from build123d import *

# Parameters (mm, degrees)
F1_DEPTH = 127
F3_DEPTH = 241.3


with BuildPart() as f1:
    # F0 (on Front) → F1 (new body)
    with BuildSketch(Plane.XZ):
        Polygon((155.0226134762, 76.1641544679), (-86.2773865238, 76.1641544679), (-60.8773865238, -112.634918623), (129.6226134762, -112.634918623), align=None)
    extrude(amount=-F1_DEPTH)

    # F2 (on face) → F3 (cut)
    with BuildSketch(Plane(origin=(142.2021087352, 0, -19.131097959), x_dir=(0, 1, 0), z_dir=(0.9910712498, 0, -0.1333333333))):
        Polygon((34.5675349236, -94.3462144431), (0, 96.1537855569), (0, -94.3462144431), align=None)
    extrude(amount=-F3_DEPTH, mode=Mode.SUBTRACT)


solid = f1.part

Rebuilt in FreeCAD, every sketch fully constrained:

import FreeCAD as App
import Part
import Sketcher

V = App.Vector
Q = App.Units.Quantity


def add_polygon(sketch, points):
    """Adds a closed chain of lines whose ends are joined by coincident constraints."""
    first, n = sketch.GeometryCount, len(points)
    for a, b in zip(points, points[1:] + points[:1]):
        sketch.addGeometry(Part.LineSegment(App.Vector(*a, 0), App.Vector(*b, 0)), False)
    for i in range(n):
        sketch.addConstraint(Sketcher.Constraint("Coincident", first + i, 2, first + (i + 1) % n, 1))

doc = App.newDocument("Part")
params = doc.addObject("Spreadsheet::Sheet", "Params")
for row, (alias, value) in enumerate([
    ("sketch1_width", "9.5 in"),
    ("sketch1_width2", "7.5 in"),
    ("sketch1_length", "7.5 in"),
    ("pad1_length", "5 in"),
    ("sketch2_height", "7.5 in"),
    ("pocket1_length", "9.5 in"),
], start=1):
    params.set(f"A{row}", alias)
    params.set(f"B{row}", "=" + value)
    params.setAlias(f"B{row}", alias)

body = doc.addObject("PartDesign::Body", "Body")

# Sketch on XZ plane
sketch1 = body.newObject("Sketcher::SketchObject", "Sketch")
sketch1.AttachmentSupport = (doc.getObject("XZ_Plane"), [""])
sketch1.MapMode = "FlatFace"
add_polygon(sketch1, [(155, 76), (-86, 76), (-61, -113), (130, -113)])  # lines 0-3
sketch1.addConstraint(Sketcher.Constraint("Horizontal", 0))
sketch1.addConstraint(Sketcher.Constraint("Horizontal", 2))
sketch1.addConstraint(Sketcher.Constraint("Equal", 1, 3))
sketch1.addConstraint(Sketcher.Constraint("DistanceX", 0, 2, 0, 1, Q("9.5 in")))
sketch1.addConstraint(Sketcher.Constraint("DistanceX", 2, 1, 2, 2, Q("7.5 in")))
sketch1.addConstraint(Sketcher.Constraint("Distance", 1, Q("7.5 in")))
sketch1.addConstraint(Sketcher.Constraint("DistanceY", 1, 2, -1, 1, 112.634919))
sketch1.addConstraint(Sketcher.Constraint("DistanceX", 0, 2, -1, 1, 86.277387))
sketch1.setExpression("Constraints[7]", "Params.sketch1_width")
sketch1.setExpression("Constraints[8]", "Params.sketch1_width2")
sketch1.setExpression("Constraints[9]", "Params.sketch1_length")
pad1 = body.newObject("PartDesign::Pad", "Pad")
pad1.Profile = sketch1
pad1.setExpression("Length", "Params.pad1_length")
pad1.Reversed = True

# Sketch on an angled plane
sketch2 = body.newObject("Sketcher::SketchObject", "Sketch001")
sketch2.Placement = App.Placement(V(142.202109, 0, -19.131098), App.Rotation(V(0, 1, 0), V(0.133333333, 0, 0.99107125), V(0.99107125, 0, -0.133333333), "ZXY"))
add_polygon(sketch2, [(35, -94), (0, 96), (0, -94)])  # lines 0-2
sketch2.addConstraint(Sketcher.Constraint("Vertical", 1))
sketch2.addConstraint(Sketcher.Constraint("Horizontal", 2))
sketch2.addConstraint(Sketcher.Constraint("PointOnObject", 0, 2, -2))
sketch2.addConstraint(Sketcher.Constraint("DistanceY", 1, 2, 1, 1, Q("7.5 in")))
sketch2.addConstraint(Sketcher.Constraint("Distance", 0, 193.610858))
sketch2.addConstraint(Sketcher.Constraint("DistanceY", -1, 1, 0, 2, 96.153786))
sketch2.setExpression("Constraints[6]", "Params.sketch2_height")
pocket1 = body.newObject("PartDesign::Pocket", "Pocket")
pocket1.Profile = sketch2
pocket1.setExpression("Length", "Params.pocket1_length")

doc.recompute()
